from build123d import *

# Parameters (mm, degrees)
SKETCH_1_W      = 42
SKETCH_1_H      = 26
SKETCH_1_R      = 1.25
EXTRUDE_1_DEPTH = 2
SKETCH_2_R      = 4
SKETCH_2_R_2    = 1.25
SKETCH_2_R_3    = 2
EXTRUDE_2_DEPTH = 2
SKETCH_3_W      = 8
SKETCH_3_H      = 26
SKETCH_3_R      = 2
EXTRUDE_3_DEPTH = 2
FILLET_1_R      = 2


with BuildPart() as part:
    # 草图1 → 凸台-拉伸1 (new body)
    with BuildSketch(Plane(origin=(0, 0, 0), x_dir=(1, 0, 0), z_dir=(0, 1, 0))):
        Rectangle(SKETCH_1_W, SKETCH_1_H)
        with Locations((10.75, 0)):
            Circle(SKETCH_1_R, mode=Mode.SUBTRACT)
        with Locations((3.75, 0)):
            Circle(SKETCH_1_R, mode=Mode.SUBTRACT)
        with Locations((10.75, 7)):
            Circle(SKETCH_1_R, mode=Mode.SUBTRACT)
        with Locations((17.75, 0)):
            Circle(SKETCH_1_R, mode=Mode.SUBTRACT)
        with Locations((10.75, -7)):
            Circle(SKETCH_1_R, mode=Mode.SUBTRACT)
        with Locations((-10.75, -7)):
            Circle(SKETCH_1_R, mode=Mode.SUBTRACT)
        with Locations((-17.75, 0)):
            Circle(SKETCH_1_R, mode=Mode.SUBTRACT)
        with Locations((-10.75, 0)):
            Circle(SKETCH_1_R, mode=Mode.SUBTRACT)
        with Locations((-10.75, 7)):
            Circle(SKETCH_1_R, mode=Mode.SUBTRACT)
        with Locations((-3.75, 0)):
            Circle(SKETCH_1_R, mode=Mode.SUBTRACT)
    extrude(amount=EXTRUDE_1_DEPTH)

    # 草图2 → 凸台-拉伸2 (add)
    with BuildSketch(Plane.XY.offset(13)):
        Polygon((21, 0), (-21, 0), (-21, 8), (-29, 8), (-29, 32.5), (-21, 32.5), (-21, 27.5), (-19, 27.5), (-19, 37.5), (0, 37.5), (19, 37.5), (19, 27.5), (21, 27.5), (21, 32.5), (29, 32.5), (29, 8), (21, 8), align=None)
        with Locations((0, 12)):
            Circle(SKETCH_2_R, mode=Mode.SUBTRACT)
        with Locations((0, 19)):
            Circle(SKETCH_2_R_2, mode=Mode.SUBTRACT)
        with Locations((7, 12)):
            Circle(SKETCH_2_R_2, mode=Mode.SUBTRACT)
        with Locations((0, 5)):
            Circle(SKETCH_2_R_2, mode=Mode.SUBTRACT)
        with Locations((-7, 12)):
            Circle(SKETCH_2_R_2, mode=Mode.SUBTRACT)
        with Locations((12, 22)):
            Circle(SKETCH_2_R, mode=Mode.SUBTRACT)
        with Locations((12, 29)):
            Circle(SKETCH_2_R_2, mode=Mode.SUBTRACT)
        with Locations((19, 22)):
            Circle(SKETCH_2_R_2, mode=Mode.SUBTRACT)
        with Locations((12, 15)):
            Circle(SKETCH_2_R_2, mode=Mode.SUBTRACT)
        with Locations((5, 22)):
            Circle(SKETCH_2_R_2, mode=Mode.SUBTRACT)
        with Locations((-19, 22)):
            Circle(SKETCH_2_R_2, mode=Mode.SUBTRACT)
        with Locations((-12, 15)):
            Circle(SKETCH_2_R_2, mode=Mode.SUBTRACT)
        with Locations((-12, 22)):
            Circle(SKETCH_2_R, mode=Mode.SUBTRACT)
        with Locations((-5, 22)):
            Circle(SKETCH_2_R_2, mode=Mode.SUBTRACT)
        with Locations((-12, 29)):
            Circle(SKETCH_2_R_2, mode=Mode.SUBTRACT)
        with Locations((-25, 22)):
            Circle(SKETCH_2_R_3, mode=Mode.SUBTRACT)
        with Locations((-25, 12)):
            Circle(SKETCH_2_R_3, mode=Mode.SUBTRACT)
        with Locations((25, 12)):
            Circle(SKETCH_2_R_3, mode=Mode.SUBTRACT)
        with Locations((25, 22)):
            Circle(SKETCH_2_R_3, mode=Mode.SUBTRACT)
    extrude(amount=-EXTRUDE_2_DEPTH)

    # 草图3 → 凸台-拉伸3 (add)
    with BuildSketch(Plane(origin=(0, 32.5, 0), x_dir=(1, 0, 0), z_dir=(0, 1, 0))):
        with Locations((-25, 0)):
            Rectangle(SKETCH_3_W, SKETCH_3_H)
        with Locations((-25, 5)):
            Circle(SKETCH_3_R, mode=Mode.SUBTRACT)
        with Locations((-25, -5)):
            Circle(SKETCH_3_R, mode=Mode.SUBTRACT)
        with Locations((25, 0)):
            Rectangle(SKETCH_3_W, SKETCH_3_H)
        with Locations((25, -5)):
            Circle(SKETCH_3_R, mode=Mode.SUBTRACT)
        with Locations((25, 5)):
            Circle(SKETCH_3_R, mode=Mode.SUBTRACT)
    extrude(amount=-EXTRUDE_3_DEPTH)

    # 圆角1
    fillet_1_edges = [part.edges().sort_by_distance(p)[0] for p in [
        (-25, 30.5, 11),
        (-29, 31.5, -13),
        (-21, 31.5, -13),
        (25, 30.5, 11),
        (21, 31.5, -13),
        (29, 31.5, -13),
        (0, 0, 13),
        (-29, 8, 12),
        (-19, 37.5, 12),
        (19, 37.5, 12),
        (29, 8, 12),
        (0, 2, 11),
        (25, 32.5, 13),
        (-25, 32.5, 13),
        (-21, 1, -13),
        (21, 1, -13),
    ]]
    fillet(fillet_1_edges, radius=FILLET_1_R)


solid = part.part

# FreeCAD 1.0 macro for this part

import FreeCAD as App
import Part
import Sketcher


def edges_at(feature, points):
    """Names of the edges that pass closest to the given points."""
    edges = feature.Shape.Edges
    near = lambda p: min(range(len(edges)), key=lambda i: edges[i].distToShape(Part.Vertex(*p))[0])
    return sorted({f"Edge{near(p) + 1}" for p in points})

doc = App.newDocument("Part")
params = doc.addObject("Spreadsheet::Sheet", "Params")
for row, (alias, value) in enumerate([
    ("sketch1_diameter", "2.5 mm"),
    ("sketch1_width", "42 mm"),
    ("sketch1_height", "26 mm"),
    ("pad1_length", "2 mm"),
    ("sketch2_diameter", "4 mm"),
    ("sketch2_diameter2", "8 mm"),
    ("sketch2_diameter3", "2.5 mm"),
    ("sketch2_width", "42 mm"),
    ("sketch2_width2", "8 mm"),
    ("pad2_length", "2 mm"),
    ("sketch3_diameter", "4 mm"),
    ("sketch3_width", "8 mm"),
    ("sketch3_height", "26 mm"),
    ("pad3_length", "2 mm"),
    ("fillet_radius", "2 mm"),
], start=1):
    params.set(f"A{row}", alias)
    params.set(f"B{row}", "=" + value)
    params.setAlias(f"B{row}", alias)

body = doc.addObject("PartDesign::Body", "Body")

# Sketch on XZ plane
sketch1 = doc.addObject("Sketcher::SketchObject", "Sketch")
body.addObject(sketch1)
sketch1.AttachmentSupport = (doc.XZ_Plane, [""])
sketch1.MapMode = "FlatFace"
sketch1.addGeometry(Part.LineSegment(App.Vector(-21, -13, 0), App.Vector(-21, 13, 0)), False)
sketch1.addGeometry(Part.LineSegment(App.Vector(-21, 13, 0), App.Vector(21, 13, 0)), False)
sketch1.addGeometry(Part.LineSegment(App.Vector(21, 13, 0), App.Vector(21, -13, 0)), False)
sketch1.addGeometry(Part.LineSegment(App.Vector(21, -13, 0), App.Vector(-21, -13, 0)), False)
sketch1.addGeometry(Part.Circle(App.Vector(-10.8, 7, 0), App.Vector(0, 0, 1), 1.2), False)
sketch1.addGeometry(Part.Circle(App.Vector(10.8, 7, 0), App.Vector(0, 0, 1), 1.2), False)
sketch1.addGeometry(Part.Circle(App.Vector(-17.8, 0, 0), App.Vector(0, 0, 1), 1.2), False)
sketch1.addGeometry(Part.Circle(App.Vector(-10.8, 0, 0), App.Vector(0, 0, 1), 1.2), False)
sketch1.addGeometry(Part.Circle(App.Vector(-3.8, 0, 0), App.Vector(0, 0, 1), 1.2), False)
sketch1.addGeometry(Part.Circle(App.Vector(-10.8, -7, 0), App.Vector(0, 0, 1), 1.2), False)
sketch1.addGeometry(Part.Circle(App.Vector(3.8, 0, 0), App.Vector(0, 0, 1), 1.2), False)
sketch1.addGeometry(Part.Circle(App.Vector(10.8, 0, 0), App.Vector(0, 0, 1), 1.2), False)
sketch1.addGeometry(Part.Circle(App.Vector(17.8, 0, 0), App.Vector(0, 0, 1), 1.2), False)
sketch1.addGeometry(Part.Circle(App.Vector(10.8, -7, 0), App.Vector(0, 0, 1), 1.2), False)
sketch1.addConstraint(Sketcher.Constraint("Coincident", 0, 2, 1, 1))
sketch1.addConstraint(Sketcher.Constraint("Coincident", 1, 2, 2, 1))
sketch1.addConstraint(Sketcher.Constraint("Coincident", 2, 2, 3, 1))
sketch1.addConstraint(Sketcher.Constraint("Coincident", 3, 2, 0, 1))
sketch1.addConstraint(Sketcher.Constraint("Vertical", 0))
sketch1.addConstraint(Sketcher.Constraint("Horizontal", 1))
sketch1.addConstraint(Sketcher.Constraint("Vertical", 2))
sketch1.addConstraint(Sketcher.Constraint("Horizontal", 3))
sketch1.addConstraint(Sketcher.Constraint("Equal", 4, 5))
sketch1.addConstraint(Sketcher.Constraint("Equal", 5, 6))
sketch1.addConstraint(Sketcher.Constraint("Equal", 6, 7))
sketch1.addConstraint(Sketcher.Constraint("Equal", 7, 8))
sketch1.addConstraint(Sketcher.Constraint("Equal", 8, 9))
sketch1.addConstraint(Sketcher.Constraint("Equal", 9, 10))
sketch1.addConstraint(Sketcher.Constraint("Equal", 10, 11))
sketch1.addConstraint(Sketcher.Constraint("Equal", 11, 12))
sketch1.addConstraint(Sketcher.Constraint("Equal", 12, 13))
sketch1.addConstraint(Sketcher.Constraint("Symmetric", 5, 3, 9, 3, -1, 1))
sketch1.addConstraint(Sketcher.Constraint("Symmetric", 8, 3, 10, 3, -1, 1))
sketch1.addConstraint(Sketcher.Constraint("Symmetric", 7, 3, 11, 3, -1, 1))
sketch1.addConstraint(Sketcher.Constraint("Symmetric", 6, 3, 12, 3, -1, 1))
sketch1.addConstraint(Sketcher.Constraint("Symmetric", 4, 3, 13, 3, -1, 1))
sketch1.addConstraint(Sketcher.Constraint("Symmetric", 0, 2, 2, 2, -1, 1))
sketch1.addConstraint(Sketcher.Constraint("Symmetric", 4, 3, 5, 3, -2))
sketch1.addConstraint(Sketcher.Constraint("PointOnObject", 6, 3, -1))
sketch1.addConstraint(Sketcher.Constraint("PointOnObject", 7, 3, -1))
sketch1.addConstraint(Sketcher.Constraint("PointOnObject", 8, 3, -1))
sketch1.addConstraint(Sketcher.Constraint("Vertical", 4, 3, 7, 3))
sketch1.addConstraint(Sketcher.Constraint("Diameter", 4, 2.5))
sketch1.addConstraint(Sketcher.Constraint("DistanceX", 1, 1, 1, 2, 42.0))
sketch1.addConstraint(Sketcher.Constraint("DistanceY", 0, 1, 0, 2, 26.0))
sketch1.addConstraint(Sketcher.Constraint("DistanceY", -1, 1, 4, 3, 7.0))
sketch1.addConstraint(Sketcher.Constraint("DistanceX", 6, 3, 4, 3, 7.0))
sketch1.addConstraint(Sketcher.Constraint("DistanceX", 7, 3, 8, 3, 7.0))
sketch1.addConstraint(Sketcher.Constraint("DistanceX", 4, 3, 5, 3, 21.5))
sketch1.setExpression("Constraints[28]", "Params.sketch1_diameter")
sketch1.setExpression("Constraints[29]", "Params.sketch1_width")
sketch1.setExpression("Constraints[30]", "Params.sketch1_height")
pad1 = doc.addObject("PartDesign::Pad", "Pad")
body.addObject(pad1)
pad1.Profile = sketch1
pad1.setExpression("Length", "Params.pad1_length")
pad1.Reversed = True

# Sketch on XY plane
sketch2 = doc.addObject("Sketcher::SketchObject", "Sketch001")
body.addObject(sketch2)
sketch2.AttachmentSupport = (doc.XY_Plane, [""])
sketch2.MapMode = "FlatFace"
sketch2.AttachmentOffset = App.Placement(App.Vector(0, 0, 13), App.Rotation())
sketch2.addGeometry(Part.LineSegment(App.Vector(-21, 0, 0), App.Vector(21, 0, 0)), False)
sketch2.addGeometry(Part.LineSegment(App.Vector(21, 0, 0), App.Vector(21, 8, 0)), False)
sketch2.addGeometry(Part.LineSegment(App.Vector(21, 8, 0), App.Vector(29, 8, 0)), False)
sketch2.addGeometry(Part.LineSegment(App.Vector(29, 8, 0), App.Vector(29, 32.5, 0)), False)
sketch2.addGeometry(Part.LineSegment(App.Vector(29, 32.5, 0), App.Vector(21, 32.5, 0)), False)
sketch2.addGeometry(Part.LineSegment(App.Vector(21, 32.5, 0), App.Vector(21, 27.5, 0)), False)
sketch2.addGeometry(Part.LineSegment(App.Vector(21, 27.5, 0), App.Vector(19, 27.5, 0)), False)
sketch2.addGeometry(Part.LineSegment(App.Vector(19, 27.5, 0), App.Vector(19, 37.5, 0)), False)
sketch2.addGeometry(Part.LineSegment(App.Vector(19, 37.5, 0), App.Vector(-19, 37.5, 0)), False)
sketch2.addGeometry(Part.LineSegment(App.Vector(-19, 37.5, 0), App.Vector(-19, 27.5, 0)), False)
sketch2.addGeometry(Part.LineSegment(App.Vector(-19, 27.5, 0), App.Vector(-21, 27.5, 0)), False)
sketch2.addGeometry(Part.LineSegment(App.Vector(-21, 27.5, 0), App.Vector(-21, 32.5, 0)), False)
sketch2.addGeometry(Part.LineSegment(App.Vector(-21, 32.5, 0), App.Vector(-29, 32.5, 0)), False)
sketch2.addGeometry(Part.LineSegment(App.Vector(-29, 32.5, 0), App.Vector(-29, 8, 0)), False)
sketch2.addGeometry(Part.LineSegment(App.Vector(-29, 8, 0), App.Vector(-21, 8, 0)), False)
sketch2.addGeometry(Part.LineSegment(App.Vector(-21, 8, 0), App.Vector(-21, 0, 0)), False)
sketch2.addGeometry(Part.Circle(App.Vector(25, 12, 0), App.Vector(0, 0, 1), 2), False)
sketch2.addGeometry(Part.Circle(App.Vector(7, 12, 0), App.Vector(0, 0, 1), 1.2), False)
sketch2.addGeometry(Part.Circle(App.Vector(12, 15, 0), App.Vector(0, 0, 1), 1.2), False)
sketch2.addGeometry(Part.Circle(App.Vector(0, 5, 0), App.Vector(0, 0, 1), 1.2), False)
sketch2.addGeometry(Part.Circle(App.Vector(0, 12, 0), App.Vector(0, 0, 1), 4), False)
sketch2.addGeometry(Part.Circle(App.Vector(-7, 12, 0), App.Vector(0, 0, 1), 1.2), False)
sketch2.addGeometry(Part.Circle(App.Vector(-12, 15, 0), App.Vector(0, 0, 1), 1.2), False)
sketch2.addGeometry(Part.Circle(App.Vector(-25, 12, 0), App.Vector(0, 0, 1), 2), False)
sketch2.addGeometry(Part.Circle(App.Vector(25, 22, 0), App.Vector(0, 0, 1), 2), False)
sketch2.addGeometry(Part.Circle(App.Vector(19, 22, 0), App.Vector(0, 0, 1), 1.2), False)
sketch2.addGeometry(Part.Circle(App.Vector(12, 22, 0), App.Vector(0, 0, 1), 4), False)
sketch2.addGeometry(Part.Circle(App.Vector(5, 22, 0), App.Vector(0, 0, 1), 1.2), False)
sketch2.addGeometry(Part.Circle(App.Vector(12, 29, 0), App.Vector(0, 0, 1), 1.2), False)
sketch2.addGeometry(Part.Circle(App.Vector(0, 19, 0), App.Vector(0, 0, 1), 1.2), False)
sketch2.addGeometry(Part.Circle(App.Vector(-5, 22, 0), App.Vector(0, 0, 1), 1.2), False)
sketch2.addGeometry(Part.Circle(App.Vector(-12, 22, 0), App.Vector(0, 0, 1), 4), False)
sketch2.addGeometry(Part.Circle(App.Vector(-19, 22, 0), App.Vector(0, 0, 1), 1.2), False)
sketch2.addGeometry(Part.Circle(App.Vector(-25, 22, 0), App.Vector(0, 0, 1), 2), False)
sketch2.addGeometry(Part.Circle(App.Vector(-12, 29, 0), App.Vector(0, 0, 1), 1.2), False)
sketch2.addConstraint(Sketcher.Constraint("Coincident", 0, 2, 1, 1))
sketch2.addConstraint(Sketcher.Constraint("Coincident", 1, 2, 2, 1))
sketch2.addConstraint(Sketcher.Constraint("Coincident", 2, 2, 3, 1))
sketch2.addConstraint(Sketcher.Constraint("Coincident", 3, 2, 4, 1))
sketch2.addConstraint(Sketcher.Constraint("Coincident", 4, 2, 5, 1))
sketch2.addConstraint(Sketcher.Constraint("Coincident", 5, 2, 6, 1))
sketch2.addConstraint(Sketcher.Constraint("Coincident", 6, 2, 7, 1))
sketch2.addConstraint(Sketcher.Constraint("Coincident", 7, 2, 8, 1))
sketch2.addConstraint(Sketcher.Constraint("Coincident", 8, 2, 9, 1))
sketch2.addConstraint(Sketcher.Constraint("Coincident", 9, 2, 10, 1))
sketch2.addConstraint(Sketcher.Constraint("Coincident", 10, 2, 11, 1))
sketch2.addConstraint(Sketcher.Constraint("Coincident", 11, 2, 12, 1))
sketch2.addConstraint(Sketcher.Constraint("Coincident", 12, 2, 13, 1))
sketch2.addConstraint(Sketcher.Constraint("Coincident", 13, 2, 14, 1))
sketch2.addConstraint(Sketcher.Constraint("Coincident", 14, 2, 15, 1))
sketch2.addConstraint(Sketcher.Constraint("Coincident", 15, 2, 0, 1))
sketch2.addConstraint(Sketcher.Constraint("Horizontal", 0))
sketch2.addConstraint(Sketcher.Constraint("Vertical", 1))
sketch2.addConstraint(Sketcher.Constraint("Horizontal", 2))
sketch2.addConstraint(Sketcher.Constraint("Vertical", 3))
sketch2.addConstraint(Sketcher.Constraint("Horizontal", 4))
sketch2.addConstraint(Sketcher.Constraint("Vertical", 5))
sketch2.addConstraint(Sketcher.Constraint("Horizontal", 6))
sketch2.addConstraint(Sketcher.Constraint("Vertical", 7))
sketch2.addConstraint(Sketcher.Constraint("Horizontal", 8))
sketch2.addConstraint(Sketcher.Constraint("Vertical", 9))
sketch2.addConstraint(Sketcher.Constraint("Horizontal", 10))
sketch2.addConstraint(Sketcher.Constraint("Vertical", 11))
sketch2.addConstraint(Sketcher.Constraint("Horizontal", 12))
sketch2.addConstraint(Sketcher.Constraint("Vertical", 13))
sketch2.addConstraint(Sketcher.Constraint("Horizontal", 14))
sketch2.addConstraint(Sketcher.Constraint("Vertical", 15))
sketch2.addConstraint(Sketcher.Constraint("Equal", 17, 18))
sketch2.addConstraint(Sketcher.Constraint("Equal", 18, 19))
sketch2.addConstraint(Sketcher.Constraint("Equal", 19, 21))
sketch2.addConstraint(Sketcher.Constraint("Equal", 21, 22))
sketch2.addConstraint(Sketcher.Constraint("Equal", 16, 23))
sketch2.addConstraint(Sketcher.Constraint("Equal", 23, 24))
sketch2.addConstraint(Sketcher.Constraint("Equal", 22, 25))
sketch2.addConstraint(Sketcher.Constraint("Equal", 20, 26))
sketch2.addConstraint(Sketcher.Constraint("Equal", 25, 27))
sketch2.addConstraint(Sketcher.Constraint("Equal", 27, 28))
sketch2.addConstraint(Sketcher.Constraint("Equal", 28, 29))
sketch2.addConstraint(Sketcher.Constraint("Equal", 29, 30))
sketch2.addConstraint(Sketcher.Constraint("Equal", 26, 31))
sketch2.addConstraint(Sketcher.Constraint("Equal", 30, 32))
sketch2.addConstraint(Sketcher.Constraint("Equal", 24, 33))
sketch2.addConstraint(Sketcher.Constraint("Equal", 32, 34))
sketch2.addConstraint(Sketcher.Constraint("Symmetric", 0, 2, 15, 2, -1, 1))
sketch2.addConstraint(Sketcher.Constraint("Symmetric", 17, 3, 21, 3, -2))
sketch2.addConstraint(Sketcher.Constraint("Symmetric", 18, 3, 22, 3, -2))
sketch2.addConstraint(Sketcher.Constraint("Symmetric", 16, 3, 23, 3, -2))
sketch2.addConstraint(Sketcher.Constraint("Symmetric", 27, 3, 30, 3, -2))
sketch2.addConstraint(Sketcher.Constraint("Symmetric", 26, 3, 31, 3, -2))
sketch2.addConstraint(Sketcher.Constraint("Symmetric", 25, 3, 32, 3, -2))
sketch2.addConstraint(Sketcher.Constraint("Symmetric", 24, 3, 33, 3, -2))
sketch2.addConstraint(Sketcher.Constraint("Symmetric", 28, 3, 34, 3, -2))
sketch2.addConstraint(Sketcher.Constraint("Symmetric", 6, 2, 9, 2, -2))
sketch2.addConstraint(Sketcher.Constraint("Symmetric", 4, 2, 11, 2, -2))
sketch2.addConstraint(Sketcher.Constraint("Symmetric", 2, 2, 13, 2, -2))
sketch2.addConstraint(Sketcher.Constraint("PointOnObject", 19, 3, -2))
sketch2.addConstraint(Sketcher.Constraint("PointOnObject", 20, 3, -2))
sketch2.addConstraint(Sketcher.Constraint("PointOnObject", 29, 3, -2))
sketch2.addConstraint(Sketcher.Constraint("Horizontal", 16, 3, 17, 3))
sketch2.addConstraint(Sketcher.Constraint("Horizontal", 17, 3, 20, 3))
sketch2.addConstraint(Sketcher.Constraint("Horizontal", 24, 3, 25, 3))
sketch2.addConstraint(Sketcher.Constraint("Horizontal", 25, 3, 26, 3))
sketch2.addConstraint(Sketcher.Constraint("Horizontal", 26, 3, 27, 3))
sketch2.addConstraint(Sketcher.Constraint("Vertical", 16, 3, 24, 3))
sketch2.addConstraint(Sketcher.Constraint("Vertical", 18, 3, 26, 3))
sketch2.addConstraint(Sketcher.Constraint("Vertical", 26, 3, 28, 3))
sketch2.addConstraint(Sketcher.Constraint("Vertical", 1, 2, 4, 2))
sketch2.addConstraint(Sketcher.Constraint("Vertical", 25, 3, 6, 2))
sketch2.addConstraint(Sketcher.Constraint("Equal", 14, 1))
sketch2.addConstraint(Sketcher.Constraint("Diameter", 16, 4.0))
sketch2.addConstraint(Sketcher.Constraint("Diameter", 20, 8.0))
sketch2.addConstraint(Sketcher.Constraint("Diameter", 17, 2.5))
sketch2.addConstraint(Sketcher.Constraint("DistanceX", 0, 1, 0, 2, 42.0))
sketch2.addConstraint(Sketcher.Constraint("DistanceX", 2, 1, 2, 2, 8.0))
sketch2.addConstraint(Sketcher.Constraint("DistanceX", 6, 2, 6, 1, 2.0))
sketch2.addConstraint(Sketcher.Constraint("DistanceY", 5, 2, 5, 1, 5.0))
sketch2.addConstraint(Sketcher.Constraint("DistanceY", 7, 1, 7, 2, 10.0))
sketch2.addConstraint(Sketcher.Constraint("DistanceY", 3, 1, 3, 2, 24.5))
sketch2.addConstraint(Sketcher.Constraint("DistanceX", -1, 1, 16, 3, 25.0))
sketch2.addConstraint(Sketcher.Constraint("DistanceY", -1, 1, 16, 3, 12.0))
sketch2.addConstraint(Sketcher.Constraint("DistanceX", -1, 1, 17, 3, 7.0))
sketch2.addConstraint(Sketcher.Constraint("DistanceX", -1, 1, 18, 3, 12.0))
sketch2.addConstraint(Sketcher.Constraint("DistanceY", -1, 1, 18, 3, 15.0))
sketch2.addConstraint(Sketcher.Constraint("DistanceY", -1, 1, 19, 3, 5.0))
sketch2.addConstraint(Sketcher.Constraint("DistanceY", -1, 1, 24, 3, 22.0))
sketch2.addConstraint(Sketcher.Constraint("DistanceX", -1, 1, 27, 3, 5.0))
sketch2.addConstraint(Sketcher.Constraint("DistanceY", -1, 1, 28, 3, 29.0))
sketch2.addConstraint(Sketcher.Constraint("DistanceY", -1, 1, 29, 3, 19.0))
sketch2.setExpression("Constraints[74]", "Params.sketch2_diameter")
sketch2.setExpression("Constraints[75]", "Params.sketch2_diameter2")
sketch2.setExpression("Constraints[76]", "Params.sketch2_diameter3")
sketch2.setExpression("Constraints[77]", "Params.sketch2_width")
sketch2.setExpression("Constraints[78]", "Params.sketch2_width2")
pad2 = doc.addObject("PartDesign::Pad", "Pad001")
body.addObject(pad2)
pad2.Profile = sketch2
pad2.setExpression("Length", "Params.pad2_length")
pad2.Reversed = True

# Sketch on XZ plane
sketch3 = doc.addObject("Sketcher::SketchObject", "Sketch002")
body.addObject(sketch3)
sketch3.AttachmentSupport = (doc.XZ_Plane, [""])
sketch3.MapMode = "FlatFace"
sketch3.AttachmentOffset = App.Placement(App.Vector(0, 0, -32.5), App.Rotation())
sketch3.addGeometry(Part.LineSegment(App.Vector(-29, -13, 0), App.Vector(-29, 13, 0)), False)
sketch3.addGeometry(Part.LineSegment(App.Vector(-29, 13, 0), App.Vector(-21, 13, 0)), False)
sketch3.addGeometry(Part.LineSegment(App.Vector(-21, 13, 0), App.Vector(-21, -13, 0)), False)
sketch3.addGeometry(Part.LineSegment(App.Vector(-21, -13, 0), App.Vector(-29, -13, 0)), False)
sketch3.addGeometry(Part.Circle(App.Vector(-25, 5, 0), App.Vector(0, 0, 1), 2), False)
sketch3.addGeometry(Part.Circle(App.Vector(-25, -5, 0), App.Vector(0, 0, 1), 2), False)
sketch3.addGeometry(Part.LineSegment(App.Vector(21, -13, 0), App.Vector(21, 13, 0)), False)
sketch3.addGeometry(Part.LineSegment(App.Vector(21, 13, 0), App.Vector(29, 13, 0)), False)
sketch3.addGeometry(Part.LineSegment(App.Vector(29, 13, 0), App.Vector(29, -13, 0)), False)
sketch3.addGeometry(Part.LineSegment(App.Vector(29, -13, 0), App.Vector(21, -13, 0)), False)
sketch3.addGeometry(Part.Circle(App.Vector(25, 5, 0), App.Vector(0, 0, 1), 2), False)
sketch3.addGeometry(Part.Circle(App.Vector(25, -5, 0), App.Vector(0, 0, 1), 2), False)
sketch3.addConstraint(Sketcher.Constraint("Coincident", 0, 2, 1, 1))
sketch3.addConstraint(Sketcher.Constraint("Coincident", 1, 2, 2, 1))
sketch3.addConstraint(Sketcher.Constraint("Coincident", 2, 2, 3, 1))
sketch3.addConstraint(Sketcher.Constraint("Coincident", 3, 2, 0, 1))
sketch3.addConstraint(Sketcher.Constraint("Coincident", 6, 2, 7, 1))
sketch3.addConstraint(Sketcher.Constraint("Coincident", 7, 2, 8, 1))
sketch3.addConstraint(Sketcher.Constraint("Coincident", 8, 2, 9, 1))
sketch3.addConstraint(Sketcher.Constraint("Coincident", 9, 2, 6, 1))
sketch3.addConstraint(Sketcher.Constraint("Vertical", 0))
sketch3.addConstraint(Sketcher.Constraint("Horizontal", 1))
sketch3.addConstraint(Sketcher.Constraint("Vertical", 2))
sketch3.addConstraint(Sketcher.Constraint("Horizontal", 3))
sketch3.addConstraint(Sketcher.Constraint("Vertical", 6))
sketch3.addConstraint(Sketcher.Constraint("Horizontal", 7))
sketch3.addConstraint(Sketcher.Constraint("Vertical", 8))
sketch3.addConstraint(Sketcher.Constraint("Horizontal", 9))
sketch3.addConstraint(Sketcher.Constraint("Equal", 4, 5))
sketch3.addConstraint(Sketcher.Constraint("Equal", 5, 10))
sketch3.addConstraint(Sketcher.Constraint("Equal", 10, 11))
sketch3.addConstraint(Sketcher.Constraint("Symmetric", 5, 3, 10, 3, -1, 1))
sketch3.addConstraint(Sketcher.Constraint("Symmetric", 4, 3, 11, 3, -1, 1))
sketch3.addConstraint(Sketcher.Constraint("Symmetric", 2, 2, 6, 2, -1, 1))
sketch3.addConstraint(Sketcher.Constraint("Symmetric", 0, 2, 8, 2, -1, 1))
sketch3.addConstraint(Sketcher.Constraint("Symmetric", 4, 3, 10, 3, -2))
sketch3.addConstraint(Sketcher.Constraint("Horizontal", 1, 2, 6, 2))
sketch3.addConstraint(Sketcher.Constraint("Diameter", 4, 4.0))
sketch3.addConstraint(Sketcher.Constraint("DistanceX", 1, 1, 1, 2, 8.0))
sketch3.addConstraint(Sketcher.Constraint("DistanceY", 0, 1, 0, 2, 26.0))
sketch3.addConstraint(Sketcher.Constraint("DistanceX", 4, 3, -1, 1, 25.0))
sketch3.addConstraint(Sketcher.Constraint("DistanceY", -1, 1, 4, 3, 5.0))
sketch3.addConstraint(Sketcher.Constraint("DistanceX", 0, 2, -1, 1, 29.0))
sketch3.setExpression("Constraints[25]", "Params.sketch3_diameter")
sketch3.setExpression("Constraints[26]", "Params.sketch3_width")
sketch3.setExpression("Constraints[27]", "Params.sketch3_height")
pad3 = doc.addObject("PartDesign::Pad", "Pad002")
body.addObject(pad3)
pad3.Profile = sketch3
pad3.setExpression("Length", "Params.pad3_length")
doc.recompute()

fillet = doc.addObject("PartDesign::Fillet", "Fillet")
body.addObject(fillet)
fillet.Base = (pad3, edges_at(pad3, [
    (-25, 30.5, 11),
    (-29, 31.5, -13),
    (-21, 31.5, -13),
    (25, 30.5, 11),
    (21, 31.5, -13),
    (29, 31.5, -13),
    (0, 0, 13),
    (-29, 8, 12),
    (-19, 37.5, 12),
    (19, 37.5, 12),
    (29, 8, 12),
    (0, 2, 11),
    (25, 32.5, 13),
    (-25, 32.5, 13),
    (-21, 1, -13),
    (21, 1, -13),
]))
fillet.setExpression("Radius", "Params.fillet_radius")

doc.recompute()
